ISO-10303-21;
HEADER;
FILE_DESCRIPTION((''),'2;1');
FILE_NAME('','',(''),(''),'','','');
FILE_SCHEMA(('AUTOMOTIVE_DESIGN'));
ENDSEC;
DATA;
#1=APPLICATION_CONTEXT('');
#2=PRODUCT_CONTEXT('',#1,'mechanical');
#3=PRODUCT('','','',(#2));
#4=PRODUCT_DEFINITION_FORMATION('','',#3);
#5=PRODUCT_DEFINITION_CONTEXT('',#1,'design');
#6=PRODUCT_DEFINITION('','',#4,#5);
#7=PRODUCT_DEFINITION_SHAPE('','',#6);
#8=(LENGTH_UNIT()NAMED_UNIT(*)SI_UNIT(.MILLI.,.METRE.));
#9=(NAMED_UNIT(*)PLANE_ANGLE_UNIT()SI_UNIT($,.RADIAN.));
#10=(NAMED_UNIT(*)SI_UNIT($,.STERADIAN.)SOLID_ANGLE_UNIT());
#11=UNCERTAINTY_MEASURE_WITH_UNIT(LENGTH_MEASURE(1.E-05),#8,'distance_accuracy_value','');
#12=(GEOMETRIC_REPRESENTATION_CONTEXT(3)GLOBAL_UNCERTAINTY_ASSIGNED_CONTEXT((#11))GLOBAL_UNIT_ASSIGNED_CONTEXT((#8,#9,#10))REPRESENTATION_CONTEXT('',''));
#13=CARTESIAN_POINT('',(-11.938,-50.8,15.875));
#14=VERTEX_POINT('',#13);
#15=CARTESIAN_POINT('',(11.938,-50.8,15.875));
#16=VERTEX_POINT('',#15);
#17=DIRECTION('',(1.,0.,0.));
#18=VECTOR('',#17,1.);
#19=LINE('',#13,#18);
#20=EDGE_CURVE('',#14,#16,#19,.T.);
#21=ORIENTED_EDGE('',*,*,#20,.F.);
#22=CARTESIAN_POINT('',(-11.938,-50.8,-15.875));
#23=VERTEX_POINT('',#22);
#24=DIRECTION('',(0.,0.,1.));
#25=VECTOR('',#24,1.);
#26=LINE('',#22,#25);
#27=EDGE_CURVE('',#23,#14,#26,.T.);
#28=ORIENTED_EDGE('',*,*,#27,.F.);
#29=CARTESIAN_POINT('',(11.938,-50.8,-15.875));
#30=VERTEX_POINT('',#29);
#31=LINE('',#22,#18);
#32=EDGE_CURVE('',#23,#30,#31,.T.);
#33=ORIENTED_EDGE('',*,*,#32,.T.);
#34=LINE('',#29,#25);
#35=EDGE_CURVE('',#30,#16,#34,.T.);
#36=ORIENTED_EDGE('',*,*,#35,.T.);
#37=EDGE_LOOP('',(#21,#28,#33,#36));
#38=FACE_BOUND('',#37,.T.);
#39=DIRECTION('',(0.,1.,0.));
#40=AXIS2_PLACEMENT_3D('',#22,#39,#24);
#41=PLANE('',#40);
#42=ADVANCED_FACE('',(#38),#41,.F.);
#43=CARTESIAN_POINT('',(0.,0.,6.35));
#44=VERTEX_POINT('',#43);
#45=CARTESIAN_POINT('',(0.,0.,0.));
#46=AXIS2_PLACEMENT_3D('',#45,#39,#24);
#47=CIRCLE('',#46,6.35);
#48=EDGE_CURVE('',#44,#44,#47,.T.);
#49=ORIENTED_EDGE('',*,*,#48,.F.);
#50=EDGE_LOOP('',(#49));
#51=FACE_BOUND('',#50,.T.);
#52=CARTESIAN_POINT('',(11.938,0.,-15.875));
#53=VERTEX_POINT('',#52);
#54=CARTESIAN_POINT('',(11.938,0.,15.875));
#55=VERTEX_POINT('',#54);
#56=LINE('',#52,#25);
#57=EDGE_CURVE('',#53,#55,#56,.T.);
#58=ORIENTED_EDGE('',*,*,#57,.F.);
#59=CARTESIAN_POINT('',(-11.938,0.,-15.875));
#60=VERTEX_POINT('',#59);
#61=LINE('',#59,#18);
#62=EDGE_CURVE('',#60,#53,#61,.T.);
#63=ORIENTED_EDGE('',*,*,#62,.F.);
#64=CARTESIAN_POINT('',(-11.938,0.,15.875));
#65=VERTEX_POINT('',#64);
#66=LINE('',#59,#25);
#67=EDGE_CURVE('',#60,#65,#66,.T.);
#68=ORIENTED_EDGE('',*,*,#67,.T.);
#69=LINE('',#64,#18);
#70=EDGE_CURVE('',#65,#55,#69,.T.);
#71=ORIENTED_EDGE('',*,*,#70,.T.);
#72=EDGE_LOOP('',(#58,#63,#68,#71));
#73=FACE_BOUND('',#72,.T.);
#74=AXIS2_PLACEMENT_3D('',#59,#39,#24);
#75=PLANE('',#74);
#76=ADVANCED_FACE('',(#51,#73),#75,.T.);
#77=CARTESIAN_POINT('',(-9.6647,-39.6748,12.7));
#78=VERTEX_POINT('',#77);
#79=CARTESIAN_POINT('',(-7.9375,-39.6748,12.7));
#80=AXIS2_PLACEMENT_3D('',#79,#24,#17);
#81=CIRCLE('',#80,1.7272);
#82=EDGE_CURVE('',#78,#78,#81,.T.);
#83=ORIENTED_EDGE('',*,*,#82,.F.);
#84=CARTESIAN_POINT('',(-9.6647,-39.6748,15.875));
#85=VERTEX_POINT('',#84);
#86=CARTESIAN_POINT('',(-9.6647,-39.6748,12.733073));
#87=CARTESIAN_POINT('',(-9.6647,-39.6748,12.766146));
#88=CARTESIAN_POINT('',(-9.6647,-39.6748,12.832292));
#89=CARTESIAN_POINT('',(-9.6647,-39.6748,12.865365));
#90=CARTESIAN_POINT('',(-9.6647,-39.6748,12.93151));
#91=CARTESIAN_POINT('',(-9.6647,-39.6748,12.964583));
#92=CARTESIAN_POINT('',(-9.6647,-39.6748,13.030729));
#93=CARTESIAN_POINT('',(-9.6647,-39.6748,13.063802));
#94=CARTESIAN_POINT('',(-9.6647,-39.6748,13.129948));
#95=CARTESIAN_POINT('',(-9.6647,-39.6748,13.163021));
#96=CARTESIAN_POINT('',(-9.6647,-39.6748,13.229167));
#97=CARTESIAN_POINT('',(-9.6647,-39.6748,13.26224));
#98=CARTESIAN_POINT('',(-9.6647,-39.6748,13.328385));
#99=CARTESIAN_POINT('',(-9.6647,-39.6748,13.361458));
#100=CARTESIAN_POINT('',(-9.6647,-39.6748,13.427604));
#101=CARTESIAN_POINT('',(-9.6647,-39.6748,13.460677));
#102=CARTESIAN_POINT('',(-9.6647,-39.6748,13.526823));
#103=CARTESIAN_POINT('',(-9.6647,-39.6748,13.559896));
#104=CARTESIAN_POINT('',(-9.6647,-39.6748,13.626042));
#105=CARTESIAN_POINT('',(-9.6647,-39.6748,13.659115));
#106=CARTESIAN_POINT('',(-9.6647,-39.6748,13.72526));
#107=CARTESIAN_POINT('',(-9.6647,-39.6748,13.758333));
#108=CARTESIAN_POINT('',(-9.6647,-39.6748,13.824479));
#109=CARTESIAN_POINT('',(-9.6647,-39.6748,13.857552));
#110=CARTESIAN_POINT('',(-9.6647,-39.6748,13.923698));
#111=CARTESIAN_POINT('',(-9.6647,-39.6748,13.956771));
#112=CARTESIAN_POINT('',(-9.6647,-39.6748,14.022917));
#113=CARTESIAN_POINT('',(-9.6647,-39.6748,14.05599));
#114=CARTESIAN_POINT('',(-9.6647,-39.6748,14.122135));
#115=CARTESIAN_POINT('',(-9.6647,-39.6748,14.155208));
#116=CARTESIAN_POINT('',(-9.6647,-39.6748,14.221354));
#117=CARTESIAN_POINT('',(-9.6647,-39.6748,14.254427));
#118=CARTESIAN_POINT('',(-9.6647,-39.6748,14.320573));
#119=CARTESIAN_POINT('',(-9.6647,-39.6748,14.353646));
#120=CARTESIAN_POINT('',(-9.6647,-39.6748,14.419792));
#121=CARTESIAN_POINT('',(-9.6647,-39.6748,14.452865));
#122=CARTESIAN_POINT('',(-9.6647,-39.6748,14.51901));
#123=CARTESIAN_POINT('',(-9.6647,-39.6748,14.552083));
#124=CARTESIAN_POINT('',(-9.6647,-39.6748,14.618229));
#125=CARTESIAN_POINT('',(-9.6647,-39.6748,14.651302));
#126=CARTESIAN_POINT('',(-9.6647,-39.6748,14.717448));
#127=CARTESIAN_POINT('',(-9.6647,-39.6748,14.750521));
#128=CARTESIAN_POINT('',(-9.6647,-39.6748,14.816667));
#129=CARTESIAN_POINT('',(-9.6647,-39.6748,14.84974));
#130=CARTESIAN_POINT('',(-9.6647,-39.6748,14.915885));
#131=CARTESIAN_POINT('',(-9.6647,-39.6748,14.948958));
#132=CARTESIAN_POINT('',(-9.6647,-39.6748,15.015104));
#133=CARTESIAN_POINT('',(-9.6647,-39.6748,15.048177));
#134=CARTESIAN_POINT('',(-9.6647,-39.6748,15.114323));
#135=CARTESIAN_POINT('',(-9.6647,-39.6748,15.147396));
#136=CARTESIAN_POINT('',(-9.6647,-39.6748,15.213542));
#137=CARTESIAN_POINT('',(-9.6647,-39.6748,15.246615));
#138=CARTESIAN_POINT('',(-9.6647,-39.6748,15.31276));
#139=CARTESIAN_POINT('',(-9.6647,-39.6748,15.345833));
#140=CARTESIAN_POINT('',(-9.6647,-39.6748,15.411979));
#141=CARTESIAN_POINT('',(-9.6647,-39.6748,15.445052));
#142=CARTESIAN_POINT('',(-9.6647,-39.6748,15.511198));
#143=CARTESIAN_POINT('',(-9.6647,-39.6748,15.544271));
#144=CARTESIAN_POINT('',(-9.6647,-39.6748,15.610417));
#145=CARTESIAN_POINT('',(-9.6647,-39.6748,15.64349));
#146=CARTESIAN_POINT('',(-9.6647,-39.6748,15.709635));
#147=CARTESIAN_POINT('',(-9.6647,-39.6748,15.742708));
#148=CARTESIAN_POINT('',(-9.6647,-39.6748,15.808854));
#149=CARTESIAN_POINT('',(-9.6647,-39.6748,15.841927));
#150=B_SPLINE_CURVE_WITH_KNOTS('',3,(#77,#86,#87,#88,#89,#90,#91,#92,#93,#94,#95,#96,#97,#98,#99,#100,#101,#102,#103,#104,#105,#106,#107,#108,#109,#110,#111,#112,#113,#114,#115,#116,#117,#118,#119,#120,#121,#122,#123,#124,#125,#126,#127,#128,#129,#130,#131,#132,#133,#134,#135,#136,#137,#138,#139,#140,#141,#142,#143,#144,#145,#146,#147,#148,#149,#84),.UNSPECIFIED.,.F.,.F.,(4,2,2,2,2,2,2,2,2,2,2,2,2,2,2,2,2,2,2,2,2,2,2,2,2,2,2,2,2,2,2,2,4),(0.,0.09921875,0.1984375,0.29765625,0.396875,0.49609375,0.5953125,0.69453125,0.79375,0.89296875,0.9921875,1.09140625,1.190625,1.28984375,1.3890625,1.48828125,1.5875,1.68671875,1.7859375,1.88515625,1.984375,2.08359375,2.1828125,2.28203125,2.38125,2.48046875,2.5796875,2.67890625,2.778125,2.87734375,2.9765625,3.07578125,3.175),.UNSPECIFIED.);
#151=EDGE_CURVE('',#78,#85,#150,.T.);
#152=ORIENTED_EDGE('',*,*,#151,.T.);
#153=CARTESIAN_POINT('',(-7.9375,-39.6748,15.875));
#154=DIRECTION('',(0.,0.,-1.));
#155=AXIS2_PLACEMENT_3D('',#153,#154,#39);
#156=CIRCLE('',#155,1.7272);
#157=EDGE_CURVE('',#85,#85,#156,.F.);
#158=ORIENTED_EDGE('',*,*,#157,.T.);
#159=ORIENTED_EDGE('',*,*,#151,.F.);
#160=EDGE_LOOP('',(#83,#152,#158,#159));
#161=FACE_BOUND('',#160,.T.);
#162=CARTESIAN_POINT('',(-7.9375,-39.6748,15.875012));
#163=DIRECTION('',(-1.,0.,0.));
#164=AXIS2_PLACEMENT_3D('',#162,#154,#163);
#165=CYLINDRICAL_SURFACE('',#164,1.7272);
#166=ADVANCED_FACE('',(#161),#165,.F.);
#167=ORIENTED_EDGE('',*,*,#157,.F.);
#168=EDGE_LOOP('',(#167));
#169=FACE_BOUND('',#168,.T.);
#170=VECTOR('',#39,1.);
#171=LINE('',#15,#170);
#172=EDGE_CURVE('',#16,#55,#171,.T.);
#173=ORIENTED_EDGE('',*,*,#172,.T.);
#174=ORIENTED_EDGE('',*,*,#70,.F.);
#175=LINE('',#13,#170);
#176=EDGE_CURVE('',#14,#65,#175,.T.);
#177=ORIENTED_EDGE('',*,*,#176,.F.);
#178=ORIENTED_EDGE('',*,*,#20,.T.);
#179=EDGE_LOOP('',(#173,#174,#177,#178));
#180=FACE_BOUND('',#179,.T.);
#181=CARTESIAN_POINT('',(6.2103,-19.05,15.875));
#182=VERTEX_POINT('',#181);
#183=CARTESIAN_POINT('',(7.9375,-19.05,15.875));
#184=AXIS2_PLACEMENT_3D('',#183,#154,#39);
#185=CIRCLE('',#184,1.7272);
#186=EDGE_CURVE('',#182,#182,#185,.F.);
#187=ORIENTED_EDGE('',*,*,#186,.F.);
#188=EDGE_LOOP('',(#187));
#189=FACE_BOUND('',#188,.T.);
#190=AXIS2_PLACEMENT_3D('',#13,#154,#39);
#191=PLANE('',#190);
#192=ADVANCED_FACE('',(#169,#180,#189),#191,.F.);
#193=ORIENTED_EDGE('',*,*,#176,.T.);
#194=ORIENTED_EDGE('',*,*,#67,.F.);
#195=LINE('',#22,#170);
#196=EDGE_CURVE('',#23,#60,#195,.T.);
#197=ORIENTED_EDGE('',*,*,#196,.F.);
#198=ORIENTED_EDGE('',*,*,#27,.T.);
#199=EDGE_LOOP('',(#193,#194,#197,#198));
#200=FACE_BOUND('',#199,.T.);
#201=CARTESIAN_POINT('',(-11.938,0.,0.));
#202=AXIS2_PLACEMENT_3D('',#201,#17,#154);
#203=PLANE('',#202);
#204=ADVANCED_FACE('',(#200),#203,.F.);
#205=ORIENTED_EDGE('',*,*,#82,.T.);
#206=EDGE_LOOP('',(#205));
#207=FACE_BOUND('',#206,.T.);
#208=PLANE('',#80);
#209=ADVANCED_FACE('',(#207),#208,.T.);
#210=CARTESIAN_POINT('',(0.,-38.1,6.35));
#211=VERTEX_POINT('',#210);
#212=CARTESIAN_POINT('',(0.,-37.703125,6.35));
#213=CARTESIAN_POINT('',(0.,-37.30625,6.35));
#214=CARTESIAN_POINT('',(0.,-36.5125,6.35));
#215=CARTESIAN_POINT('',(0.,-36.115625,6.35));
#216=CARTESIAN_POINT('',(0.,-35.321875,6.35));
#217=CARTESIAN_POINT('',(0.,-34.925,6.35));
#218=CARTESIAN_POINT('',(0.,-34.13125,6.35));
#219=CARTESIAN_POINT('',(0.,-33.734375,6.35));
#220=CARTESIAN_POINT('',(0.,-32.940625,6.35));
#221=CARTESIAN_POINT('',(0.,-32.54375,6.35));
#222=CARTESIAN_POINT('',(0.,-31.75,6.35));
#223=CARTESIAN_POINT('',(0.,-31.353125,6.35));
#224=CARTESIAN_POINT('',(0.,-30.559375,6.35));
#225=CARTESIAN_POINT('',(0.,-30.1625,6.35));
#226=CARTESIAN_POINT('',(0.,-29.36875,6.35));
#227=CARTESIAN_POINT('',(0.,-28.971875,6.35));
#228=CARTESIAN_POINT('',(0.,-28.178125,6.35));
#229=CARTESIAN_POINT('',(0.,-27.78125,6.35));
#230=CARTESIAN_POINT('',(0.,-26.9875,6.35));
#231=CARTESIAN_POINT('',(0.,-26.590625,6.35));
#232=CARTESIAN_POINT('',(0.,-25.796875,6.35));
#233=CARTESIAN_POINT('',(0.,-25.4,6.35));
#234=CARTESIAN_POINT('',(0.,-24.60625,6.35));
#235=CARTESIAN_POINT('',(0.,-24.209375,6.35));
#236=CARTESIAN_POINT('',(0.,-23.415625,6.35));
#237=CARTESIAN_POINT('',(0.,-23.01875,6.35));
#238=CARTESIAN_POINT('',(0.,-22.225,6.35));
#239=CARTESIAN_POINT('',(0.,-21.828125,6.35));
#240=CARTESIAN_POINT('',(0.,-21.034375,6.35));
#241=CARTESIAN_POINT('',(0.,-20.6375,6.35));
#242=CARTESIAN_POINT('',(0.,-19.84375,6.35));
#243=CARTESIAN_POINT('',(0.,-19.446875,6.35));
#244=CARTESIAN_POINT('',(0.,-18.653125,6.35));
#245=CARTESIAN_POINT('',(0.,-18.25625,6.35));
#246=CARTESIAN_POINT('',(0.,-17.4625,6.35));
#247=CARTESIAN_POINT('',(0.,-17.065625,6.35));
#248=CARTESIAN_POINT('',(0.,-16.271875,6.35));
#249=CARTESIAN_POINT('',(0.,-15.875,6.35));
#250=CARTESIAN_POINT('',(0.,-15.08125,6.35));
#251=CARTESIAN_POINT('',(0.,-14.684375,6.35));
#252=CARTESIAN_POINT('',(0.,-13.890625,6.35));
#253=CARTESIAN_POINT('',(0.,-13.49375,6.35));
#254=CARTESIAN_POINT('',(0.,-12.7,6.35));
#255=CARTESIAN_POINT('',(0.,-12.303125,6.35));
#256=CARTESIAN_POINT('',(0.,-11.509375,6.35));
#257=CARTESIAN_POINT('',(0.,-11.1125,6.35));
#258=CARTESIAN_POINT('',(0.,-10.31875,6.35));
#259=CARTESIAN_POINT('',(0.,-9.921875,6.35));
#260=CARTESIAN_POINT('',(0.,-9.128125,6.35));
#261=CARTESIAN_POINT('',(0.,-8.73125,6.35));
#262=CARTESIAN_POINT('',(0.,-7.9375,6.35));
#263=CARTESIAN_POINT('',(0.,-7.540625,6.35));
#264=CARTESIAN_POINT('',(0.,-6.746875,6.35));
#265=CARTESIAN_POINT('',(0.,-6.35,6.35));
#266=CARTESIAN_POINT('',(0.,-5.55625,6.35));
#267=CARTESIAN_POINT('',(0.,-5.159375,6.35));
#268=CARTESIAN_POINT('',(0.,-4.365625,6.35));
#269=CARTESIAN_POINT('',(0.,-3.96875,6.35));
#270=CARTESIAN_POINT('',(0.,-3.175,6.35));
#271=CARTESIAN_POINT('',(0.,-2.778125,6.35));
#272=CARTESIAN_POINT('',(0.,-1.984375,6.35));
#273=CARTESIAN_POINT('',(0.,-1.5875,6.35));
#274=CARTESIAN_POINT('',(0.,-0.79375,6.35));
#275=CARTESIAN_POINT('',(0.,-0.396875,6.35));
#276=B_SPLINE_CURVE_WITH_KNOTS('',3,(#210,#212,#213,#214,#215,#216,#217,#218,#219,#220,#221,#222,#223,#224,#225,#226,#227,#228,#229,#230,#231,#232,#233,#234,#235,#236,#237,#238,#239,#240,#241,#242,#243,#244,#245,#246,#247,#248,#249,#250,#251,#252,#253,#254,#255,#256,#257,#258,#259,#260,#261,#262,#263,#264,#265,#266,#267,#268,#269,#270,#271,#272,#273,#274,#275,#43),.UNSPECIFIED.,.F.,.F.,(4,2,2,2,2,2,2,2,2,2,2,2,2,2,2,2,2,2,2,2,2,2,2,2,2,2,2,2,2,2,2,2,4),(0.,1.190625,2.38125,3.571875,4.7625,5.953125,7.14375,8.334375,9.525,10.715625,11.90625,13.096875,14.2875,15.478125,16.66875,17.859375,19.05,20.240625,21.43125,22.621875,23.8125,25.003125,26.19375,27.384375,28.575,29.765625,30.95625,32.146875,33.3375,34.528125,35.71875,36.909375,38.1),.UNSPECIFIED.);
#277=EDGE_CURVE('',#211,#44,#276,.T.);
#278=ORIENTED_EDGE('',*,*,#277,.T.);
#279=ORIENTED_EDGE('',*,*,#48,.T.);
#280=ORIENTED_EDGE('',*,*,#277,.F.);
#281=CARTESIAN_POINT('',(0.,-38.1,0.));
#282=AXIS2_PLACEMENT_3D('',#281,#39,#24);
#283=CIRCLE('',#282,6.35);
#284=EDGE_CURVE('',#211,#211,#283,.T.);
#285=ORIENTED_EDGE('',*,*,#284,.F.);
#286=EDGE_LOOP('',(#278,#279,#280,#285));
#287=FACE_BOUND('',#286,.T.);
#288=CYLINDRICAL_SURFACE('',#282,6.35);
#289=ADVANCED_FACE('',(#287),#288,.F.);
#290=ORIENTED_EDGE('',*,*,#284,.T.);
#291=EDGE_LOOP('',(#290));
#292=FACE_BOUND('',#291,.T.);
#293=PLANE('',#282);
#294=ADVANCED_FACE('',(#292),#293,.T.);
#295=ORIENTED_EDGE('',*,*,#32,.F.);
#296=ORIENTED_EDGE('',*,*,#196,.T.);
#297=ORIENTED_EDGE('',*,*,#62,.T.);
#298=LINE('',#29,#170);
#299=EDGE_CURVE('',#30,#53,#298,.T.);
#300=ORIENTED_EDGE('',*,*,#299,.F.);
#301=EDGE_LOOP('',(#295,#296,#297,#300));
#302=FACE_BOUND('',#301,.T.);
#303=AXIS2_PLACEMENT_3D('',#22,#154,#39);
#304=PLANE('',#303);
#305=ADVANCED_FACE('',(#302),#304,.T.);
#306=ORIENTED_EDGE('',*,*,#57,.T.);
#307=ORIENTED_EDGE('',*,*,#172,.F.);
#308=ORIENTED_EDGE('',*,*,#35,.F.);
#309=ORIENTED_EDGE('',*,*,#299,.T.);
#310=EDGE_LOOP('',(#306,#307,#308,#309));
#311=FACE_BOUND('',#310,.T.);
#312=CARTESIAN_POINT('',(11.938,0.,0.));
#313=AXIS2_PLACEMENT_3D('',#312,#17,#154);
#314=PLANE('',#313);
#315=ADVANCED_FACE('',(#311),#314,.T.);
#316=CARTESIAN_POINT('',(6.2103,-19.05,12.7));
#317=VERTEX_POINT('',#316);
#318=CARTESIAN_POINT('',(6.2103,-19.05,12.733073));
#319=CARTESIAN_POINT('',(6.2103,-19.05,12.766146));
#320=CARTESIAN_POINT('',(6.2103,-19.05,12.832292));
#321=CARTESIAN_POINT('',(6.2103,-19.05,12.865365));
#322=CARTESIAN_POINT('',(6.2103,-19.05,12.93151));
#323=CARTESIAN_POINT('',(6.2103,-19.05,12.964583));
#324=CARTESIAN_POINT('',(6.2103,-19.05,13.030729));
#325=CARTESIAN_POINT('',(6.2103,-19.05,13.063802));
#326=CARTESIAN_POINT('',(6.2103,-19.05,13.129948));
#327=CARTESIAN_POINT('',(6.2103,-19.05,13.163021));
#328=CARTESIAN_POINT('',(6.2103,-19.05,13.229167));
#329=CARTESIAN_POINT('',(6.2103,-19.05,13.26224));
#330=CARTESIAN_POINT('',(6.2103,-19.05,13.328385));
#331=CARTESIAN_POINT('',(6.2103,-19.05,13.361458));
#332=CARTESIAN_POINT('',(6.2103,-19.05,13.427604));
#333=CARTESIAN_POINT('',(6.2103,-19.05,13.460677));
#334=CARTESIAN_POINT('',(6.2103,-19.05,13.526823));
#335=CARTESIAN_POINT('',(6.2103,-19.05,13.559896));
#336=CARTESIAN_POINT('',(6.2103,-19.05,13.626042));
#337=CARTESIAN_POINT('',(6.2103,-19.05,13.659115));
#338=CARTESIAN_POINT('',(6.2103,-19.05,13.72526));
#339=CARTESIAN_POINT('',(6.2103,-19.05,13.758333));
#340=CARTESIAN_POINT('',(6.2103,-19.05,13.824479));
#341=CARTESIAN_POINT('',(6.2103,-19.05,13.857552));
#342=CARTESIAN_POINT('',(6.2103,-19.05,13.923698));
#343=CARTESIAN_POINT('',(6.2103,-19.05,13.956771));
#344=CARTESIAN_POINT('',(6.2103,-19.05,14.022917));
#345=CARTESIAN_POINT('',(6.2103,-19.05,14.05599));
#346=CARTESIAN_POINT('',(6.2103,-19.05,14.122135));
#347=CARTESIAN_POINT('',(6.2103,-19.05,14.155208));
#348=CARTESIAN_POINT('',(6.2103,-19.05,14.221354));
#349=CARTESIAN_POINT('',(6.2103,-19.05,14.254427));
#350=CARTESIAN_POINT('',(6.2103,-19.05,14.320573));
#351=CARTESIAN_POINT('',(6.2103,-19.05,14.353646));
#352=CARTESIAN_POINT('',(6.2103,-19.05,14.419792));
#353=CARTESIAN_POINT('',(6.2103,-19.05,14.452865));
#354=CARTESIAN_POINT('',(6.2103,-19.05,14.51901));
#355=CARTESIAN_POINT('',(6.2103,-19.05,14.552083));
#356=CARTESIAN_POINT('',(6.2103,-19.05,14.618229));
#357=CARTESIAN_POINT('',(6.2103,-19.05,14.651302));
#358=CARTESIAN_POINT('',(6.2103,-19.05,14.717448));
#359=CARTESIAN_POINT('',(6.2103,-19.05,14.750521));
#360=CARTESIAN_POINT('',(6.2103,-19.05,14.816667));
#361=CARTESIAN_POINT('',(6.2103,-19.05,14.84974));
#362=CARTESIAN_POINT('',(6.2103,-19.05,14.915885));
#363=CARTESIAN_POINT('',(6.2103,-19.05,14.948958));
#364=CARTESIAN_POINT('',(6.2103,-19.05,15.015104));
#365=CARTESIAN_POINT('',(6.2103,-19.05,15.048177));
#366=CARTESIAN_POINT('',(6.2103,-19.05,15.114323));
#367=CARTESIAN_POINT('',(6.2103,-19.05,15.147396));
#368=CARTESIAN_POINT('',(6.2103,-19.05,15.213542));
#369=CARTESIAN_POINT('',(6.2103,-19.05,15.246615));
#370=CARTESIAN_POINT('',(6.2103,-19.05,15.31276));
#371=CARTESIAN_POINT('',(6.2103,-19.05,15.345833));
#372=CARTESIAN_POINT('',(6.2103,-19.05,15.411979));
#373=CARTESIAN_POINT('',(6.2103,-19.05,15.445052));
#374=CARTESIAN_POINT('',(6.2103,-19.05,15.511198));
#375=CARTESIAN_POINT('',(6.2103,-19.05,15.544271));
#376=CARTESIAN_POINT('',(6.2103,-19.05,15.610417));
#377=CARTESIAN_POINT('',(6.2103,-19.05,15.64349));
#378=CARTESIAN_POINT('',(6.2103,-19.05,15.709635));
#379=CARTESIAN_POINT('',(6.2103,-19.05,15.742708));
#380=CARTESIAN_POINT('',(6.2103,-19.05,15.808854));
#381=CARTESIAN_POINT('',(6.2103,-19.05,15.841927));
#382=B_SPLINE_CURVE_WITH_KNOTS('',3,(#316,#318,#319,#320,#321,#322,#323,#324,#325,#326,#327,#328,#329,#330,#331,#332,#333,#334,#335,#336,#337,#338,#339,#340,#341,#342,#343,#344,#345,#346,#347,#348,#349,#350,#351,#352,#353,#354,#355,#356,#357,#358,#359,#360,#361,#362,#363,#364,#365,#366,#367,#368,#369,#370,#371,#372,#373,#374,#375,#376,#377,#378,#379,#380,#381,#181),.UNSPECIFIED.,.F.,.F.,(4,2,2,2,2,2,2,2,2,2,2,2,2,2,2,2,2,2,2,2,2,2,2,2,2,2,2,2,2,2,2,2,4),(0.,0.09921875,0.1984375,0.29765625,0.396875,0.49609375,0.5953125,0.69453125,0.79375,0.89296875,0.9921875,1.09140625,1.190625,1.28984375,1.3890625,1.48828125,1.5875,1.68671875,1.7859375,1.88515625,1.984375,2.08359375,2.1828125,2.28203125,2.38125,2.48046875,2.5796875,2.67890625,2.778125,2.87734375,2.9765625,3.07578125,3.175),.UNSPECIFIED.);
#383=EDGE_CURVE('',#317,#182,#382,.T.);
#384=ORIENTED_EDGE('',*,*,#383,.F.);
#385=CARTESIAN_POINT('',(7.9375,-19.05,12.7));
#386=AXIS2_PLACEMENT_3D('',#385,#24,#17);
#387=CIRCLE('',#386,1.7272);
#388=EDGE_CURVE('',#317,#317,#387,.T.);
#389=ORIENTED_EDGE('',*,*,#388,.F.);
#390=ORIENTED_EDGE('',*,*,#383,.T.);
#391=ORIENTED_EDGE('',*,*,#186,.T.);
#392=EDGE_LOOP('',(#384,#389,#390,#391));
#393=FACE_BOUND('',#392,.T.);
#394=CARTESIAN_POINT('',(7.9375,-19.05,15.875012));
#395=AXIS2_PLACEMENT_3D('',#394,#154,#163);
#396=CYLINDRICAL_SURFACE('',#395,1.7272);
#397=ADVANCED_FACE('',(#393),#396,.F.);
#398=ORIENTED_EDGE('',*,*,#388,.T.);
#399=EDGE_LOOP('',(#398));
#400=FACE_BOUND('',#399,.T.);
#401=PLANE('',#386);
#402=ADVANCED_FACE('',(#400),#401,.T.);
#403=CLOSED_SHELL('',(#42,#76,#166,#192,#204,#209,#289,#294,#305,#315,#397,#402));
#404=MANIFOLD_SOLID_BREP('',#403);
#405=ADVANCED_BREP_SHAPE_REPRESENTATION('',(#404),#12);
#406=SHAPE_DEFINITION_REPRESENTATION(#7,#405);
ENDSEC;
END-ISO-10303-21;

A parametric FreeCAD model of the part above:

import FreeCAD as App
import Part
import Sketcher
from FreeCAD import Vector
Q = App.Units.Quantity

doc = App.newDocument("Part")
body = doc.addObject("PartDesign::Body", "Body")

sketch1 = body.newObject("Sketcher::SketchObject", "Sketch")
sketch1.AttachmentSupport = (doc.getObject("YZ_Plane"), [""])
sketch1.MapMode = "FlatFace"
sketch1.addGeometry([
    Part.LineSegment(Vector(0, 16, 0), Vector(-51, 16, 0)),
    Part.LineSegment(Vector(-51, 16, 0), Vector(-51, -16, 0)),
    Part.LineSegment(Vector(-51, -16, 0), Vector(0, -16, 0)),
    Part.LineSegment(Vector(0, -16, 0), Vector(0, 16, 0)),
], False)
sketch1.addConstraint([
    Sketcher.Constraint("Coincident", 0, 2, 1, 1),
    Sketcher.Constraint("Coincident", 1, 2, 2, 1),
    Sketcher.Constraint("Coincident", 2, 2, 3, 1),
    Sketcher.Constraint("Coincident", 3, 2, 0, 1),
    Sketcher.Constraint("Horizontal", 0),
    Sketcher.Constraint("Vertical", 1),
    Sketcher.Constraint("Horizontal", 2),
    Sketcher.Constraint("Vertical", 3),
    Sketcher.Constraint("Symmetric", 2, 2, 3, 2, -1, 1),
    Sketcher.Constraint("DistanceX", 0, 2, 0, 1, Q("2 in")),
    Sketcher.Constraint("DistanceY", 1, 2, 1, 1, Q("1.25 in")),
])
pad1 = body.newObject("PartDesign::Pad", "Pad")
pad1.Profile = sketch1
pad1.Type = "TwoLengths"
pad1.Length = Q("0.47 in")
pad1.Length2 = Q("0.47 in")

sketch2 = body.newObject("Sketcher::SketchObject", "Sketch001")
sketch2.AttachmentSupport = (doc.getObject("XY_Plane"), [""])
sketch2.MapMode = "FlatFace"
sketch2.AttachmentOffset = App.Placement(Vector(0, 0, 0.625 * 25.4), App.Rotation())
sketch2.addGeometry([
    Part.Circle(Vector(7.9, -19.1, 0), Vector(0, 0, 1), 1.7),
    Part.Circle(Vector(-7.9, -39.7, 0), Vector(0, 0, 1), 1.7),
], False)
sketch2.addConstraint([
    Sketcher.Constraint("Equal", 0, 1),
    Sketcher.Constraint("Diameter", 0, Q("0.136 in")),
    Sketcher.Constraint("DistanceY", 0, 3, -1, 1, Q("0.75 in")),
    Sketcher.Constraint("DistanceX", -1, 1, 0, 3, Q("0.3125 in")),
    Sketcher.Constraint("DistanceX", 1, 3, -1, 1, Q("0.3125 in")),
    Sketcher.Constraint("DistanceY", 1, 3, -1, 1, Q("1.562 in")),
])
pocket1 = body.newObject("PartDesign::Pocket", "Pocket")
pocket1.Profile = sketch2
pocket1.Type = "TwoLengths"
pocket1.Length = 62.083699
pocket1.Length2 = Q("0.125 in")
pocket1.Reversed = True

sketch3 = body.newObject("Sketcher::SketchObject", "Sketch002")
sketch3.AttachmentSupport = (doc.getObject("XZ_Plane"), [""])
sketch3.MapMode = "FlatFace"
sketch3.addGeometry(Part.Circle(Vector(0, 0, 0), Vector(0, 0, 1), 6), False)
sketch3.addConstraint([
    Sketcher.Constraint("Coincident", 0, 3, -1, 1),
    Sketcher.Constraint("Diameter", 0, Q("0.5 in")),
])
pocket2 = body.newObject("PartDesign::Pocket", "Pocket001")
pocket2.Profile = sketch3
pocket2.Length = Q("1.5 in")
pocket2.Reversed = True

doc.recompute()
